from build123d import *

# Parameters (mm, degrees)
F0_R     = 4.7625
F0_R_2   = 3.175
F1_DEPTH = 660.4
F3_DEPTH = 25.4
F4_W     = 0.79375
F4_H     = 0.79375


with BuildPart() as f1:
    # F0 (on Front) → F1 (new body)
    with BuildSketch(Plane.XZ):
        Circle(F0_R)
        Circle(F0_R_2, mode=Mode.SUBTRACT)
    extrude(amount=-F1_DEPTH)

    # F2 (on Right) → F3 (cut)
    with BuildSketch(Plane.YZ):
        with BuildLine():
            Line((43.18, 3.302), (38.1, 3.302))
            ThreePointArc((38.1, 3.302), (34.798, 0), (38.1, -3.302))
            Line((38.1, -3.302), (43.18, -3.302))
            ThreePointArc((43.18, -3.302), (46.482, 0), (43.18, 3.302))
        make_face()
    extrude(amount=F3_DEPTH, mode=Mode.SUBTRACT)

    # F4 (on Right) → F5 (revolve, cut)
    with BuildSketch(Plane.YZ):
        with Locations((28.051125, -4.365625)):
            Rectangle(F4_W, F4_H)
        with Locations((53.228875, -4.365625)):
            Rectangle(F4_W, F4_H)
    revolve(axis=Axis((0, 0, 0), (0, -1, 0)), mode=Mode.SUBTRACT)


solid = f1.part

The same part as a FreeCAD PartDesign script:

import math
import FreeCAD as App
import Part
import Sketcher
from FreeCAD import Vector
Q = App.Units.Quantity


def add_polygon(sketch, points):
    """Adds a closed chain of lines whose ends are joined by coincident constraints."""
    first, n = sketch.GeometryCount, len(points)
    for a, b in zip(points, points[1:] + points[:1]):
        sketch.addGeometry(Part.LineSegment(App.Vector(*a, 0), App.Vector(*b, 0)), False)
    for i in range(n):
        sketch.addConstraint(Sketcher.Constraint("Coincident", first + i, 2, first + (i + 1) % n, 1))

doc = App.newDocument("Part")
body = doc.addObject("PartDesign::Body", "Body")

# Sketch on XZ plane
sketch1 = body.newObject("Sketcher::SketchObject", "Sketch")
sketch1.AttachmentSupport = (doc.getObject("XZ_Plane"), [""])
sketch1.MapMode = "FlatFace"
sketch1.addGeometry(Part.Circle(Vector(0, 0, 0), Vector(0, 0, 1), 4.8), False)
sketch1.addGeometry(Part.Circle(Vector(0, 0, 0), Vector(0, 0, 1), 3.2), False)
sketch1.addConstraint(Sketcher.Constraint("Coincident", 0, 3, -1, 1))
sketch1.addConstraint(Sketcher.Constraint("Coincident", 1, 3, -1, 1))
sketch1.addConstraint(Sketcher.Constraint("Diameter", 1, Q("0.25 in")))
sketch1.addConstraint(Sketcher.Constraint("Diameter", 0, Q("0.375 in")))
pad1 = body.newObject("PartDesign::Pad", "Pad")
pad1.Profile = sketch1
pad1.Length = Q("26 in")
pad1.Reversed = True

# Sketch on YZ plane
sketch2 = body.newObject("Sketcher::SketchObject", "Sketch001")
sketch2.AttachmentSupport = (doc.getObject("YZ_Plane"), [""])
sketch2.MapMode = "FlatFace"
sketch2.addGeometry(Part.LineSegment(Vector(43.2, 3.3, 0), Vector(38.1, 3.3, 0)), False)
sketch2.addGeometry(Part.ArcOfCircle(Part.Circle(Vector(38.1, 0, 0), Vector(0, 0, 1), 3.3), math.radians(90), math.radians(270)), False)
sketch2.addGeometry(Part.LineSegment(Vector(38.1, -3.3, 0), Vector(43.2, -3.3, 0)), False)
sketch2.addGeometry(Part.ArcOfCircle(Part.Circle(Vector(43.2, 0, 0), Vector(0, 0, 1), 3.3), math.radians(-90), math.radians(90)), False)
sketch2.addConstraint(Sketcher.Constraint("Tangent", 0, 2, 1, 1))
sketch2.addConstraint(Sketcher.Constraint("Tangent", 1, 2, 2, 1))
sketch2.addConstraint(Sketcher.Constraint("Tangent", 2, 2, 3, 1))
sketch2.addConstraint(Sketcher.Constraint("Tangent", 3, 2, 0, 1))
sketch2.addConstraint(Sketcher.Constraint("Horizontal", 0))
sketch2.addConstraint(Sketcher.Constraint("Horizontal", 2))
sketch2.addConstraint(Sketcher.Constraint("PointOnObject", 1, 3, -1))
sketch2.addConstraint(Sketcher.Constraint("Radius", 1, Q("0.13 in")))
sketch2.addConstraint(Sketcher.Constraint("DistanceX", 0, 2, 0, 1, Q("0.2 in")))
sketch2.addConstraint(Sketcher.Constraint("DistanceX", -1, 1, 1, 3, Q("1.5 in")))
pocket1 = body.newObject("PartDesign::Pocket", "Pocket")
pocket1.Profile = sketch2
pocket1.Length = Q("1 in")
pocket1.Reversed = True

# Sketch on YZ plane
sketch3 = body.newObject("Sketcher::SketchObject", "Sketch002")
sketch3.AttachmentSupport = (doc.getObject("YZ_Plane"), [""])
sketch3.MapMode = "FlatFace"
add_polygon(sketch3, [(27.7, -4), (27.7, -4.8), (28.4, -4.8), (28.4, -4)])  # lines 0-3
add_polygon(sketch3, [(52.8, -4), (52.8, -4.8), (53.6, -4.8), (53.6, -4)])  # lines 4-7
sketch3.addConstraint(Sketcher.Constraint("Vertical", 0))
sketch3.addConstraint(Sketcher.Constraint("Horizontal", 1))
sketch3.addConstraint(Sketcher.Constraint("Vertical", 2))
sketch3.addConstraint(Sketcher.Constraint("Horizontal", 3))
sketch3.addConstraint(Sketcher.Constraint("Vertical", 4))
sketch3.addConstraint(Sketcher.Constraint("Horizontal", 5))
sketch3.addConstraint(Sketcher.Constraint("Vertical", 6))
sketch3.addConstraint(Sketcher.Constraint("Horizontal", 7))
sketch3.addConstraint(Sketcher.Constraint("Horizontal", 1, 2, 4, 2))
sketch3.addConstraint(Sketcher.Constraint("Horizontal", 3, 2, 6, 2))
sketch3.addConstraint(Sketcher.Constraint("Equal", 3, 5))
sketch3.addConstraint(Sketcher.Constraint("Equal", 7, 0))
sketch3.addConstraint(Sketcher.Constraint("DistanceX", 1, 1, 1, 2, Q("0.03125 in")))
sketch3.addConstraint(Sketcher.Constraint("DistanceX", -1, 1, 1, 2, Q("1.12 in")))
sketch3.addConstraint(Sketcher.Constraint("DistanceX", -1, 1, 4, 2, Q("2.08 in")))
sketch3.addConstraint(Sketcher.Constraint("DistanceY", 0, 2, -1, 1, Q("0.1875 in")))
groove = body.newObject("PartDesign::Groove", "Groove")
groove.Profile = sketch3
groove.ReferenceAxis = (sketch3, ["H_Axis"])
groove.Angle = 360

doc.recompute()
